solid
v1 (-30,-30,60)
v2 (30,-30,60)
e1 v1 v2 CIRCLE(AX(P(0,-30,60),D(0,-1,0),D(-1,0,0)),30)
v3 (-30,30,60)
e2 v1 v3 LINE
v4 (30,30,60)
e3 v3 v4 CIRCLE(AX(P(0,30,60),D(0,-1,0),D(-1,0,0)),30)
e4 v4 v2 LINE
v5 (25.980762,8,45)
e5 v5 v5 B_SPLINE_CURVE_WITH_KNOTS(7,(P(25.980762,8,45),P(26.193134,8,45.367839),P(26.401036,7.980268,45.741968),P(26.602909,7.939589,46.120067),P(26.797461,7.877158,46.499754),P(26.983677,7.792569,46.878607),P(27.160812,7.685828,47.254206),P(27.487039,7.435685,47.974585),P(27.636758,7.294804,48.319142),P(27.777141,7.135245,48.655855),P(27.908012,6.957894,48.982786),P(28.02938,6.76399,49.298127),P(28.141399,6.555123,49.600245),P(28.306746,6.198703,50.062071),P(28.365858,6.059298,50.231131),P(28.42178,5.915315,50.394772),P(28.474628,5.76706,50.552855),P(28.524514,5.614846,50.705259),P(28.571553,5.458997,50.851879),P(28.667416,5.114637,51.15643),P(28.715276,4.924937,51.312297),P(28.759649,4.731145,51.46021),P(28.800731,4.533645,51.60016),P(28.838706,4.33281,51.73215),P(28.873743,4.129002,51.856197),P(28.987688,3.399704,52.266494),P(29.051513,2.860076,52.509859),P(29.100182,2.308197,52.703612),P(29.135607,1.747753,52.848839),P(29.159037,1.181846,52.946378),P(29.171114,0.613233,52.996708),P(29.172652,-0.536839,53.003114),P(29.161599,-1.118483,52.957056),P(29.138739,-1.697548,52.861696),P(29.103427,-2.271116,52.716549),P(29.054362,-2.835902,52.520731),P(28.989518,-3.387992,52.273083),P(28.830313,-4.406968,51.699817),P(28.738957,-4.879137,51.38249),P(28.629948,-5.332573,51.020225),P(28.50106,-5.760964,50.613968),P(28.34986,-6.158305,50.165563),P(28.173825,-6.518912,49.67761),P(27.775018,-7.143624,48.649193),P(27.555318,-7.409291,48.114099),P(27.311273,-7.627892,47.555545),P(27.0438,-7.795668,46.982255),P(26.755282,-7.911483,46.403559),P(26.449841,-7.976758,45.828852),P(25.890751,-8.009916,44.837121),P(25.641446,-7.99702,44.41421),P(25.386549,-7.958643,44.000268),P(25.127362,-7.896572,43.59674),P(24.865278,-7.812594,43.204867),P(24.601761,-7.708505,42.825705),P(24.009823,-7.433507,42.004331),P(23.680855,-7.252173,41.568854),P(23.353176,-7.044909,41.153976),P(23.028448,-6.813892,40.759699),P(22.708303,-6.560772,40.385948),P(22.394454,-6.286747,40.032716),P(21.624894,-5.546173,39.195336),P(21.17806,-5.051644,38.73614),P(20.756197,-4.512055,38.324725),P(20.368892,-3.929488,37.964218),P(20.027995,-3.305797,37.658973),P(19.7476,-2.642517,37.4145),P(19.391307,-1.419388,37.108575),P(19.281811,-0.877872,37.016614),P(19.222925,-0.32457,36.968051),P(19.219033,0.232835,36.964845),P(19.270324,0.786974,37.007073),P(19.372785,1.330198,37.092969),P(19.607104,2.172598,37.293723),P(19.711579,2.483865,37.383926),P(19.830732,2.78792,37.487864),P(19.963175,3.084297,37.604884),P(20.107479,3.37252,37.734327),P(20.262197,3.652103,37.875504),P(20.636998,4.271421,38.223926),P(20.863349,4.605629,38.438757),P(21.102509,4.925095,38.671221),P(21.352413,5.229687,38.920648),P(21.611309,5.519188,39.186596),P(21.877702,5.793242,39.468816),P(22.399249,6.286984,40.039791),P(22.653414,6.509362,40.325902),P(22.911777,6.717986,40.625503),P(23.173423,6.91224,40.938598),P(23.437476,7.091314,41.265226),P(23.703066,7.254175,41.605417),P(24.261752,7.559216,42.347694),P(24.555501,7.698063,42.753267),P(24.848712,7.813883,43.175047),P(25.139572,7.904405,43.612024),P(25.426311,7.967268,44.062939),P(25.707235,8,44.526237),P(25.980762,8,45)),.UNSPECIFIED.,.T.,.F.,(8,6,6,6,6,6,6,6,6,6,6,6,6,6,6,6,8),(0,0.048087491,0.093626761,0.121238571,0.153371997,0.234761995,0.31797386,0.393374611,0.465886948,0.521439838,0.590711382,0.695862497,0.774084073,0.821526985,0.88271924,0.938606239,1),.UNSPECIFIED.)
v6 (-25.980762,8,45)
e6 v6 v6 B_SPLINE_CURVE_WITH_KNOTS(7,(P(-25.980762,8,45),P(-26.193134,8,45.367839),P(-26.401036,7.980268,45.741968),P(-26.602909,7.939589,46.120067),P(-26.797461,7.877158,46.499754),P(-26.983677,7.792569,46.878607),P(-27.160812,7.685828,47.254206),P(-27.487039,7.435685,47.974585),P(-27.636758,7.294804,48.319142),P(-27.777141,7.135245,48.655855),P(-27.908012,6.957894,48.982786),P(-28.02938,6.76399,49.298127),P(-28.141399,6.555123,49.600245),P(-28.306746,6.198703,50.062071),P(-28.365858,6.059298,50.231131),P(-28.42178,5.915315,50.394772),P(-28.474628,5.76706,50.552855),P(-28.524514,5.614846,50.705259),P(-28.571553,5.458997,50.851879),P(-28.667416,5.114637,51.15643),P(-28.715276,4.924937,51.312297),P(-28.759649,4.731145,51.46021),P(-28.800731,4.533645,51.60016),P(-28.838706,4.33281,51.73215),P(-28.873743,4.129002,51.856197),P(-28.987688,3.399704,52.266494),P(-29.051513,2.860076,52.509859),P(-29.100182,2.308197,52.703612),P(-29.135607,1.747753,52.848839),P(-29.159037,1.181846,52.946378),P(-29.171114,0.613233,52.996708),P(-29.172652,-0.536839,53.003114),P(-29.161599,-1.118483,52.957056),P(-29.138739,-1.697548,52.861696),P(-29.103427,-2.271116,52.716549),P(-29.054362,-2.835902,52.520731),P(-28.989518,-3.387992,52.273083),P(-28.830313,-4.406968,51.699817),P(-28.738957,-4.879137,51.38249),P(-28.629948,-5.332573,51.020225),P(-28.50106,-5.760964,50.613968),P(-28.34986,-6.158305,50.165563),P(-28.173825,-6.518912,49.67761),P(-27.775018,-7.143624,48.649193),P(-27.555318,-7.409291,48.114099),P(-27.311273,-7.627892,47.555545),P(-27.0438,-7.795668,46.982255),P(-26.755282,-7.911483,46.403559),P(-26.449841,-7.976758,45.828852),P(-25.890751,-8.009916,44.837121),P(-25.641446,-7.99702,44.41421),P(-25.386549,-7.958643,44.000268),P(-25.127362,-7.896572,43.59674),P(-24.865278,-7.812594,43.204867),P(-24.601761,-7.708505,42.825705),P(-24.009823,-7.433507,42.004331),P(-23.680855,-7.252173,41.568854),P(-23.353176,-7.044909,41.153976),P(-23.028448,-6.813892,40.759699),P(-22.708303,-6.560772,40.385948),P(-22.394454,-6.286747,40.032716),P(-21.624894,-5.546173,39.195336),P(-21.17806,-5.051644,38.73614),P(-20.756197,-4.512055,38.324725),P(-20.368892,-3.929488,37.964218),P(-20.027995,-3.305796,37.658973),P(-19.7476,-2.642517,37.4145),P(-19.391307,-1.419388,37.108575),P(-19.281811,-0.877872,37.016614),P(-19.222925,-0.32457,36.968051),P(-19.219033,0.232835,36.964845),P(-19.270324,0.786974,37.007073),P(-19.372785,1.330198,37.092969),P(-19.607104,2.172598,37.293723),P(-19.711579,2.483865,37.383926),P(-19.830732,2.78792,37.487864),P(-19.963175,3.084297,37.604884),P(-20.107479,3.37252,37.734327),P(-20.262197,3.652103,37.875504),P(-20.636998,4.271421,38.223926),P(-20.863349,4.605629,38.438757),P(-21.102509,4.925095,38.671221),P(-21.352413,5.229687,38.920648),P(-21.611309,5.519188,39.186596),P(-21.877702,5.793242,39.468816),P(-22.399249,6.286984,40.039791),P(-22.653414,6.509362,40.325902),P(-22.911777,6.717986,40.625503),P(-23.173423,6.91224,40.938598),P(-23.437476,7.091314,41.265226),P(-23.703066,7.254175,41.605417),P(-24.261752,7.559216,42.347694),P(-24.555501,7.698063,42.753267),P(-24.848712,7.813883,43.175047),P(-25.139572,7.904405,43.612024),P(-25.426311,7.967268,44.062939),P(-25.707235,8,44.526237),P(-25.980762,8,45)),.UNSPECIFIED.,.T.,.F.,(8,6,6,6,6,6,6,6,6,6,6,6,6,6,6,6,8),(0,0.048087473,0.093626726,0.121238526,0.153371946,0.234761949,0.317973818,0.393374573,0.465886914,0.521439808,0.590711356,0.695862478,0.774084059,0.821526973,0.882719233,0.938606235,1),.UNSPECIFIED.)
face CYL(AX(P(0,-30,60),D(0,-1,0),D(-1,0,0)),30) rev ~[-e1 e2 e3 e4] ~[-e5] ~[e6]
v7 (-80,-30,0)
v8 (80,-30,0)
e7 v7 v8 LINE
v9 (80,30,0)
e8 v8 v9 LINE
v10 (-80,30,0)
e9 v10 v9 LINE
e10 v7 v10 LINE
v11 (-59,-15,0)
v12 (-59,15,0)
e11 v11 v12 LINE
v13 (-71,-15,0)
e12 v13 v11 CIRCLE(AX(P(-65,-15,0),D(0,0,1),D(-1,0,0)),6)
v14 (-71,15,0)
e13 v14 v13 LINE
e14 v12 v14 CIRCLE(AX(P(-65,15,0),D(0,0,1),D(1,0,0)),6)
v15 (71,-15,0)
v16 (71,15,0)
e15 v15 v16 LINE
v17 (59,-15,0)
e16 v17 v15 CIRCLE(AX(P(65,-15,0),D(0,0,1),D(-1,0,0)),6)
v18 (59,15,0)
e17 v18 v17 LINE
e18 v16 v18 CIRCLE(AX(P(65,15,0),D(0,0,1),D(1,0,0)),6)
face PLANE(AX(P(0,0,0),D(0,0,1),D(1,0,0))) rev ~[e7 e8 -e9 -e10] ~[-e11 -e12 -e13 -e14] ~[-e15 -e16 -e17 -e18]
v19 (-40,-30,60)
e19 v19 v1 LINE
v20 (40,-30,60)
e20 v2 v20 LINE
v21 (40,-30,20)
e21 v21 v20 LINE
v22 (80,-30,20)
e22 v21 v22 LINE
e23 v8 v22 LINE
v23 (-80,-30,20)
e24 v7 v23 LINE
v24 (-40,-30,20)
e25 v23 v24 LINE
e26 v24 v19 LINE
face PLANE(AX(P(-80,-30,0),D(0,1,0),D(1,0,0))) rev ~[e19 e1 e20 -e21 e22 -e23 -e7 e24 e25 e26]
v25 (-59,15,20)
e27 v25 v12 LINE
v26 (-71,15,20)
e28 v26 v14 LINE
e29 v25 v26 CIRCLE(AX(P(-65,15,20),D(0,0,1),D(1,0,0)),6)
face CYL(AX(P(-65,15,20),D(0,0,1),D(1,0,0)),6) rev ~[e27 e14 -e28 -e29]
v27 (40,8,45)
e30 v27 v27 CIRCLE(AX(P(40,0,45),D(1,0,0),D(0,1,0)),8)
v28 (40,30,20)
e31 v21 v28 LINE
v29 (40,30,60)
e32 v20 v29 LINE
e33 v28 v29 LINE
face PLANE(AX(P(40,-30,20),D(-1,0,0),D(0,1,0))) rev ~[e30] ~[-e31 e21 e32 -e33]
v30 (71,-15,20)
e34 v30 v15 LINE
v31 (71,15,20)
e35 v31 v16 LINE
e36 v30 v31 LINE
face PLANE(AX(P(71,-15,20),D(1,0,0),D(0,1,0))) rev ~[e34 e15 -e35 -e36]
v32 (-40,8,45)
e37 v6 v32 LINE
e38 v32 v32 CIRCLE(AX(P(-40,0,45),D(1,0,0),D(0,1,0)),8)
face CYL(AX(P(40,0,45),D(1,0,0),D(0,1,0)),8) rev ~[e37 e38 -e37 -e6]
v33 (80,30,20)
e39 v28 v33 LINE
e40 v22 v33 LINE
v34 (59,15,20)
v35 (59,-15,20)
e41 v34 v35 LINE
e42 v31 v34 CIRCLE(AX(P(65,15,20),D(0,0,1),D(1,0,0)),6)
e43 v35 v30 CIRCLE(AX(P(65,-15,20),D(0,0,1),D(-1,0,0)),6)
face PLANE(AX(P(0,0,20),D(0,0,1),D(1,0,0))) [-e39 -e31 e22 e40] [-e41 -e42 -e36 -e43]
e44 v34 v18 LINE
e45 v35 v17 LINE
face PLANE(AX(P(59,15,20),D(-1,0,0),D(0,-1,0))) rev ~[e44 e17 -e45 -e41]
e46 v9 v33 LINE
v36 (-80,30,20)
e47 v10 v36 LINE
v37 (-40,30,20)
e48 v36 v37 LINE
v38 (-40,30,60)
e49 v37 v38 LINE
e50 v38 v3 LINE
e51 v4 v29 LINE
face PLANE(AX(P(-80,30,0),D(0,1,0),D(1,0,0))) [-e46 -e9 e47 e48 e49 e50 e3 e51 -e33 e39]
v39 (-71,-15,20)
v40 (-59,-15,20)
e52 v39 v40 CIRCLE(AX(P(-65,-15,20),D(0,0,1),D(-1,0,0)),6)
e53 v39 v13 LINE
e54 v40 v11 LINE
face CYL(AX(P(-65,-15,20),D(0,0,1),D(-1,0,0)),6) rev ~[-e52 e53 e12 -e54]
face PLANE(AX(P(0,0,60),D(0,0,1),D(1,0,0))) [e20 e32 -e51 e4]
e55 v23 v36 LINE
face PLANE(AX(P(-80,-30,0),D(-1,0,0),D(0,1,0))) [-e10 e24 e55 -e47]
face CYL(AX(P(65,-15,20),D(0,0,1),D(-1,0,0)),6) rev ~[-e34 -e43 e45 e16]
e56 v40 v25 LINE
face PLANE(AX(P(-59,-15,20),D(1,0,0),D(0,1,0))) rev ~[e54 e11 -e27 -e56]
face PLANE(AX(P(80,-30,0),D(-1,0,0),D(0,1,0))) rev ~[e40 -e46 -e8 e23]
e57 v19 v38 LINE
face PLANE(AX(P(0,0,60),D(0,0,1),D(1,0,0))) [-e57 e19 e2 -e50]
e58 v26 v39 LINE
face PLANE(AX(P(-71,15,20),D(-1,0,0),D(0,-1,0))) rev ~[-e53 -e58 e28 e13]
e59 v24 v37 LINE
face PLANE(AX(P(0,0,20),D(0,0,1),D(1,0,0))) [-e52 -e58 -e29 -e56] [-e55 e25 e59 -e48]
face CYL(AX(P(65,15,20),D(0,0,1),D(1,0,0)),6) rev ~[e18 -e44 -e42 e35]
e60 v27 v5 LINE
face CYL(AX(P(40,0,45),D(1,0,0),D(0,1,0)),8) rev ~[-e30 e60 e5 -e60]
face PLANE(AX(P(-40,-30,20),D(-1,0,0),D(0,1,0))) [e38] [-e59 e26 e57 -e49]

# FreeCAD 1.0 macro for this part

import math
import FreeCAD as App
import Part
import Sketcher


def add_polygon(sketch, points):
    """Adds a closed chain of lines whose ends are joined by coincident constraints."""
    first, n = sketch.GeometryCount, len(points)
    for a, b in zip(points, points[1:] + points[:1]):
        sketch.addGeometry(Part.LineSegment(App.Vector(*a, 0), App.Vector(*b, 0)), False)
    for i in range(n):
        sketch.addConstraint(Sketcher.Constraint("Coincident", first + i, 2, first + (i + 1) % n, 1))

doc = App.newDocument("Part")
body = doc.addObject("PartDesign::Body", "Body")

# Sketch on XY plane
sketch1 = body.newObject("Sketcher::SketchObject", "Sketch")
sketch1.AttachmentSupport = (doc.getObject("XY_Plane"), [""])
sketch1.MapMode = "FlatFace"
add_polygon(sketch1, [(-80, 30), (-80, -30), (80, -30), (80, 30)])  # lines 0-3
sketch1.addConstraint(Sketcher.Constraint("Vertical", 0))
sketch1.addConstraint(Sketcher.Constraint("Horizontal", 1))
sketch1.addConstraint(Sketcher.Constraint("Vertical", 2))
sketch1.addConstraint(Sketcher.Constraint("Horizontal", 3))
sketch1.addConstraint(Sketcher.Constraint("Symmetric", 0, 2, 2, 2, -1, 1))
sketch1.addConstraint(Sketcher.Constraint("DistanceX", 1, 1, 1, 2, 160.0))
sketch1.addConstraint(Sketcher.Constraint("DistanceY", 0, 2, 0, 1, 60.0))
pad1 = body.newObject("PartDesign::Pad", "Pad")
pad1.Profile = sketch1
pad1.Length = 20

# Sketch on XY plane
sketch2 = body.newObject("Sketcher::SketchObject", "Sketch001")
sketch2.AttachmentSupport = (doc.getObject("XY_Plane"), [""])
sketch2.MapMode = "FlatFace"
sketch2.AttachmentOffset = App.Placement(App.Vector(0, 0, 20), App.Rotation())
sketch2.addGeometry(Part.ArcOfCircle(Part.Circle(App.Vector(-65, -15, 0), App.Vector(0, 0, 1), 6), math.radians(180), math.radians(360)), False)
sketch2.addGeometry(Part.LineSegment(App.Vector(-59, -15, 0), App.Vector(-59, 15, 0)), False)
sketch2.addGeometry(Part.ArcOfCircle(Part.Circle(App.Vector(-65, 15, 0), App.Vector(0, 0, 1), 6), math.radians(0), math.radians(180)), False)
sketch2.addGeometry(Part.LineSegment(App.Vector(-71, 15, 0), App.Vector(-71, -15, 0)), False)
sketch2.addGeometry(Part.ArcOfCircle(Part.Circle(App.Vector(65, -15, 0), App.Vector(0, 0, 1), 6), math.radians(180), math.radians(360)), False)
sketch2.addGeometry(Part.LineSegment(App.Vector(71, -15, 0), App.Vector(71, 15, 0)), False)
sketch2.addGeometry(Part.ArcOfCircle(Part.Circle(App.Vector(65, 15, 0), App.Vector(0, 0, 1), 6), math.radians(0), math.radians(180)), False)
sketch2.addGeometry(Part.LineSegment(App.Vector(59, 15, 0), App.Vector(59, -15, 0)), False)
sketch2.addConstraint(Sketcher.Constraint("Tangent", 0, 2, 1, 1))
sketch2.addConstraint(Sketcher.Constraint("Tangent", 1, 2, 2, 1))
sketch2.addConstraint(Sketcher.Constraint("Tangent", 2, 2, 3, 1))
sketch2.addConstraint(Sketcher.Constraint("Tangent", 3, 2, 0, 1))
sketch2.addConstraint(Sketcher.Constraint("Tangent", 4, 2, 5, 1))
sketch2.addConstraint(Sketcher.Constraint("Tangent", 5, 2, 6, 1))
sketch2.addConstraint(Sketcher.Constraint("Tangent", 6, 2, 7, 1))
sketch2.addConstraint(Sketcher.Constraint("Tangent", 7, 2, 4, 1))
sketch2.addConstraint(Sketcher.Constraint("Vertical", 1))
sketch2.addConstraint(Sketcher.Constraint("Vertical", 3))
sketch2.addConstraint(Sketcher.Constraint("Vertical", 5))
sketch2.addConstraint(Sketcher.Constraint("Vertical", 7))
sketch2.addConstraint(Sketcher.Constraint("Equal", 2, 4))
sketch2.addConstraint(Sketcher.Constraint("Symmetric", 2, 3, 4, 3, -1, 1))
sketch2.addConstraint(Sketcher.Constraint("Horizontal", 0, 3, 4, 3))
sketch2.addConstraint(Sketcher.Constraint("Horizontal", 2, 3, 6, 3))
sketch2.addConstraint(Sketcher.Constraint("Radius", 0, 6.0))
sketch2.addConstraint(Sketcher.Constraint("DistanceY", 1, 1, 1, 2, 30.0))
sketch2.addConstraint(Sketcher.Constraint("DistanceX", 0, 3, -1, 1, 65.0))
pocket1 = body.newObject("PartDesign::Pocket", "Pocket")
pocket1.Profile = sketch2
pocket1.Type = "ThroughAll"

# Sketch on XY plane
sketch3 = body.newObject("Sketcher::SketchObject", "Sketch002")
sketch3.AttachmentSupport = (doc.getObject("XY_Plane"), [""])
sketch3.MapMode = "FlatFace"
sketch3.AttachmentOffset = App.Placement(App.Vector(0, 0, 20), App.Rotation())
add_polygon(sketch3, [(-40, 30), (-40, -30), (40, -30), (40, 30)])  # lines 0-3
sketch3.addConstraint(Sketcher.Constraint("Vertical", 0))
sketch3.addConstraint(Sketcher.Constraint("Horizontal", 1))
sketch3.addConstraint(Sketcher.Constraint("Vertical", 2))
sketch3.addConstraint(Sketcher.Constraint("Horizontal", 3))
sketch3.addConstraint(Sketcher.Constraint("Symmetric", 0, 2, 2, 2, -1, 1))
sketch3.addConstraint(Sketcher.Constraint("DistanceX", 1, 1, 1, 2, 80.0))
sketch3.addConstraint(Sketcher.Constraint("DistanceY", 0, 2, 0, 1, 60.0))
pad2 = body.newObject("PartDesign::Pad", "Pad001")
pad2.Profile = sketch3
pad2.Length = 40

# Sketch on YZ plane
sketch4 = body.newObject("Sketcher::SketchObject", "Sketch003")
sketch4.AttachmentSupport = (doc.getObject("YZ_Plane"), [""])
sketch4.MapMode = "FlatFace"
sketch4.AttachmentOffset = App.Placement(App.Vector(0, 0, 40), App.Rotation())
sketch4.addGeometry(Part.Circle(App.Vector(0, 45, 0), App.Vector(0, 0, 1), 8), False)
sketch4.addConstraint(Sketcher.Constraint("PointOnObject", 0, 3, -2))
sketch4.addConstraint(Sketcher.Constraint("Diameter", 0, 16.0))
sketch4.addConstraint(Sketcher.Constraint("DistanceY", -1, 1, 0, 3, 45.0))
pocket2 = body.newObject("PartDesign::Pocket", "Pocket001")
pocket2.Profile = sketch4
pocket2.Type = "ThroughAll"

# Sketch on XZ plane
sketch5 = body.newObject("Sketcher::SketchObject", "Sketch004")
sketch5.AttachmentSupport = (doc.getObject("XZ_Plane"), [""])
sketch5.MapMode = "FlatFace"
sketch5.AttachmentOffset = App.Placement(App.Vector(0, 0, 30), App.Rotation())
sketch5.addGeometry(Part.Circle(App.Vector(0, 60, 0), App.Vector(0, 0, 1), 30), False)
sketch5.addConstraint(Sketcher.Constraint("PointOnObject", 0, 3, -2))
sketch5.addConstraint(Sketcher.Constraint("Diameter", 0, 60.0))
sketch5.addConstraint(Sketcher.Constraint("DistanceY", -1, 1, 0, 3, 60.0))
pocket3 = body.newObject("PartDesign::Pocket", "Pocket002")
pocket3.Profile = sketch5
pocket3.Type = "ThroughAll"

doc.recompute()
